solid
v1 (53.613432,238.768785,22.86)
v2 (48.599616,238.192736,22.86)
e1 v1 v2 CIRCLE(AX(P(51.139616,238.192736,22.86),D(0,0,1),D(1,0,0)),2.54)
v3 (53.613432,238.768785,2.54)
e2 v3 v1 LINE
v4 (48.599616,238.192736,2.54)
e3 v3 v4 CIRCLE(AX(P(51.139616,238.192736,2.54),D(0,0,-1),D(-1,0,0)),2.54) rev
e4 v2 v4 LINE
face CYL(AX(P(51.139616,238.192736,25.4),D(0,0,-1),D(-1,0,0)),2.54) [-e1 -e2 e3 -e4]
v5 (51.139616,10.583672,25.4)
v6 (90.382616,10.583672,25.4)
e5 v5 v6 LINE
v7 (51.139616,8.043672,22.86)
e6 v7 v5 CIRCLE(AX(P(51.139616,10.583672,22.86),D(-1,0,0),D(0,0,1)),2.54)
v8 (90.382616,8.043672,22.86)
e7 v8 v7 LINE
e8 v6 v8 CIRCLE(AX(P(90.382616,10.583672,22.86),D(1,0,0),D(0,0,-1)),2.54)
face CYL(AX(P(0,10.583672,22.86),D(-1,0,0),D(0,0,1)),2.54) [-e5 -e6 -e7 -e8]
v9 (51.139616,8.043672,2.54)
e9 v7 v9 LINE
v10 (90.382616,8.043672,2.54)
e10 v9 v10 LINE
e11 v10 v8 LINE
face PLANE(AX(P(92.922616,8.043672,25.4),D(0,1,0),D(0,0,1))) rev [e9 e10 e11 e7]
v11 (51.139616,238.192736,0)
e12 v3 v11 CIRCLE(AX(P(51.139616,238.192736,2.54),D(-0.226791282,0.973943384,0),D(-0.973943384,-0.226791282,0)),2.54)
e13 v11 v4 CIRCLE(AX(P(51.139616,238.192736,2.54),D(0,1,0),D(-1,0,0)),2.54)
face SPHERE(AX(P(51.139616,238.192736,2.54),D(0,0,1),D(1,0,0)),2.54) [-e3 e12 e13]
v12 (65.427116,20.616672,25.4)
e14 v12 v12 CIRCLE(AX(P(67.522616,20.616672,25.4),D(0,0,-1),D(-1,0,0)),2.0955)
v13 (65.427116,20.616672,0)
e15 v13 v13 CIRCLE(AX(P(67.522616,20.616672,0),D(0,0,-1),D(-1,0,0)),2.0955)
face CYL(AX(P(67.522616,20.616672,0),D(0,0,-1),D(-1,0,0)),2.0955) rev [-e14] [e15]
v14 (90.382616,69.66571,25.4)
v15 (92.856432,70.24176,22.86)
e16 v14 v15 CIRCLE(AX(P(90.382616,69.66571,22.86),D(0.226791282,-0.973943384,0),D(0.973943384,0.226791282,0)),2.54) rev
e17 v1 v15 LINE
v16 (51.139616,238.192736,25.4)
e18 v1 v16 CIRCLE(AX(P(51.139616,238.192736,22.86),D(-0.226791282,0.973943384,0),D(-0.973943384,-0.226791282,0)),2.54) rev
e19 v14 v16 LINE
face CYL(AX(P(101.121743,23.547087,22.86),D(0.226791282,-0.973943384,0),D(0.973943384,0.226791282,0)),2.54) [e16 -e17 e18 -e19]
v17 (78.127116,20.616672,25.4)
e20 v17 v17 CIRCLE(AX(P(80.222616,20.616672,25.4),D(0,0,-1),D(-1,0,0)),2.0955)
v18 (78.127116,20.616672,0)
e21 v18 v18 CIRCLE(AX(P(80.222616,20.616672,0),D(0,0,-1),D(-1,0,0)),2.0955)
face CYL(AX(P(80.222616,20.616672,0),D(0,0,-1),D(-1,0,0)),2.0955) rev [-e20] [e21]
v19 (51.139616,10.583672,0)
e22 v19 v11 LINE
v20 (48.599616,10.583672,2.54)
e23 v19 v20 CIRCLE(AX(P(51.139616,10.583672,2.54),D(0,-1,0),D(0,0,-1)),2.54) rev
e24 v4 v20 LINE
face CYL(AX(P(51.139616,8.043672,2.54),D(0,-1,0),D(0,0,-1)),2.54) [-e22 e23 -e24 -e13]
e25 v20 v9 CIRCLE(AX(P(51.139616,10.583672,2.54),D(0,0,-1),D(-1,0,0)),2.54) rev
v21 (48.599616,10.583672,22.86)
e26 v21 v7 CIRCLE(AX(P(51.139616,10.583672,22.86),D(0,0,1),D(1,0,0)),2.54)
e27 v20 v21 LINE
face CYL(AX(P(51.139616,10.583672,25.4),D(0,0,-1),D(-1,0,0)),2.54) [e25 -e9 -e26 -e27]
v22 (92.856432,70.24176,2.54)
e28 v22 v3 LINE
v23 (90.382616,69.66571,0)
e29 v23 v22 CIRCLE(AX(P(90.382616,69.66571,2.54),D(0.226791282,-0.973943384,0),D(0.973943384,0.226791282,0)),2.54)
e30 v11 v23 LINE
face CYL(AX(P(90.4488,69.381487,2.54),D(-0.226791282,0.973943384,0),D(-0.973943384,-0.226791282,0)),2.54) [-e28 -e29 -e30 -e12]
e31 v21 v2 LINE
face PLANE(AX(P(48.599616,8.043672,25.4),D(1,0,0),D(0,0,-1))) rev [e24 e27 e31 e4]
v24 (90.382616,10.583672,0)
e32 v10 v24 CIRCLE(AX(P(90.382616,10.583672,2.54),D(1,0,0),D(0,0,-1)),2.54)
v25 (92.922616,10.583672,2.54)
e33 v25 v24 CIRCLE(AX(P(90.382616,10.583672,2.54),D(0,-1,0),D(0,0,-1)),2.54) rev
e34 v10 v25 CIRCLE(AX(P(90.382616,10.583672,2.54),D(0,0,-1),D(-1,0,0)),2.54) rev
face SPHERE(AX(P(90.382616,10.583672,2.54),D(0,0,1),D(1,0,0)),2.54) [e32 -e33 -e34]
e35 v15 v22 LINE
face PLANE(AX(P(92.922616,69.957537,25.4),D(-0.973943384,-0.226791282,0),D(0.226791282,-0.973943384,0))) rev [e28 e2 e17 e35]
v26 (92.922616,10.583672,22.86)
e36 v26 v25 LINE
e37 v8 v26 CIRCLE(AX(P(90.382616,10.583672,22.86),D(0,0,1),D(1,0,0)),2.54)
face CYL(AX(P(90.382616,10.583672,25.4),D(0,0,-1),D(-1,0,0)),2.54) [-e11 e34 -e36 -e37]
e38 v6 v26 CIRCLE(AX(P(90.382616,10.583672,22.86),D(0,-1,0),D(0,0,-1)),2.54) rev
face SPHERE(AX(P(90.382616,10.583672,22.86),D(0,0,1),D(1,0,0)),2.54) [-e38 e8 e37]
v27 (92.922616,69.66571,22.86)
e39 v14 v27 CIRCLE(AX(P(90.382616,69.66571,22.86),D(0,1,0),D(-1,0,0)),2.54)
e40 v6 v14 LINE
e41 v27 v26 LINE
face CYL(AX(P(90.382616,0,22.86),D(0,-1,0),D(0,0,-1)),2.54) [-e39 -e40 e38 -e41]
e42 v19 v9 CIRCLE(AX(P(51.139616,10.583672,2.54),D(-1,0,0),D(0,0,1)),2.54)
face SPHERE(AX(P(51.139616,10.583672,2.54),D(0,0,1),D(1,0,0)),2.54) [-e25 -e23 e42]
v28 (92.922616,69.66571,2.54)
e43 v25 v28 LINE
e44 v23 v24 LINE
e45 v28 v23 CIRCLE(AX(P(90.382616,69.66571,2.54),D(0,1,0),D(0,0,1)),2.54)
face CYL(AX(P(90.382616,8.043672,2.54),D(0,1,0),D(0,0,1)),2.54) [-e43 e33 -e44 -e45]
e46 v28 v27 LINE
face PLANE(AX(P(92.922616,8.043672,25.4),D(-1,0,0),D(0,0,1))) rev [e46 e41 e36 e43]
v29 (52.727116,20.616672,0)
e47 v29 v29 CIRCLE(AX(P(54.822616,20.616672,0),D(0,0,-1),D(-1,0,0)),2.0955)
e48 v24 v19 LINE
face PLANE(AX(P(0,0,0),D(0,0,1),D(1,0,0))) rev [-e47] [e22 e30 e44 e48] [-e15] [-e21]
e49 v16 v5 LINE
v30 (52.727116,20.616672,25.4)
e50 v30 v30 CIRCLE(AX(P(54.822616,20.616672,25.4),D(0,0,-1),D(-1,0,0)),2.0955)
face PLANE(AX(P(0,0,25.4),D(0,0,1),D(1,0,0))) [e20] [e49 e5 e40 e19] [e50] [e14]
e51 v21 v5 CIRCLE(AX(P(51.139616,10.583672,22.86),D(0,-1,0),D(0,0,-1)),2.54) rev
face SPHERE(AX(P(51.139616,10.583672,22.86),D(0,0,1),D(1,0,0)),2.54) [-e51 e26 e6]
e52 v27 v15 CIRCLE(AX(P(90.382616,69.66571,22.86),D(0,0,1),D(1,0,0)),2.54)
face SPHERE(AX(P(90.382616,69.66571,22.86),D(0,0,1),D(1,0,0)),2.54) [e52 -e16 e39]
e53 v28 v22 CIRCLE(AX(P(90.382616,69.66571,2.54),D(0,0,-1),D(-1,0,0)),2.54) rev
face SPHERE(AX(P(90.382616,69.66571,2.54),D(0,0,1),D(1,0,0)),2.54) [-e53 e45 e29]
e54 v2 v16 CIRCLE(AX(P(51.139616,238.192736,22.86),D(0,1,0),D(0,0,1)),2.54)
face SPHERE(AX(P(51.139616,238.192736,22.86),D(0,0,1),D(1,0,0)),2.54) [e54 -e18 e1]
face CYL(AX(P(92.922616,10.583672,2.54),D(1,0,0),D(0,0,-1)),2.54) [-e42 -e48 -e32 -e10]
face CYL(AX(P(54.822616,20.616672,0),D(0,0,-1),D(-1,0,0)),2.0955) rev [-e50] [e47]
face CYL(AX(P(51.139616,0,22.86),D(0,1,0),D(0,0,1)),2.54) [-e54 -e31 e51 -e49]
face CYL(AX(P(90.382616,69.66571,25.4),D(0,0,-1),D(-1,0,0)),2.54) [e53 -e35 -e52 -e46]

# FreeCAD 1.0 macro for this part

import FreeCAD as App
import Part
import Sketcher
from FreeCAD import Vector
Q = App.Units.Quantity


def edges_at(feature, points):
    """Names of the edges that pass closest to the given points."""
    edges = feature.Shape.Edges
    near = lambda p: min(range(len(edges)), key=lambda i: edges[i].distToShape(Part.Vertex(*p))[0])
    return sorted({f"Edge{near(p) + 1}" for p in points})


def add_polygon(sketch, points):
    """Adds a closed chain of lines whose ends are joined by coincident constraints."""
    first, n = sketch.GeometryCount, len(points)
    for a, b in zip(points, points[1:] + points[:1]):
        sketch.addGeometry(Part.LineSegment(App.Vector(*a, 0), App.Vector(*b, 0)), False)
    for i in range(n):
        sketch.addConstraint(Sketcher.Constraint("Coincident", first + i, 2, first + (i + 1) % n, 1))

doc = App.newDocument("Part")
body = doc.addObject("PartDesign::Body", "Body")

# Sketch on XY plane
sketch1 = doc.addObject("Sketcher::SketchObject", "Sketch")
body.addObject(sketch1)
sketch1.AttachmentSupport = (doc.XY_Plane, [""])
sketch1.MapMode = "FlatFace"
add_polygon(sketch1, [(49, 8), (93, 8), (93, 70), (49, 260)])  # lines 0-3
sketch1.addConstraint([
    Sketcher.Constraint("Horizontal", 0),
    Sketcher.Constraint("Vertical", 1),
    Sketcher.Constraint("Vertical", 3),
    Sketcher.Constraint("DistanceX", 0, 1, 0, 2, Q("1.745 in")),
    Sketcher.Constraint("Distance", 2, Q("195.435202 mm")),
    Sketcher.Constraint("DistanceY", 1, 1, 1, 2, Q("61.913865 mm")),
    Sketcher.Constraint("DistanceY", -1, 1, 0, 2, Q("8.043672 mm")),
    Sketcher.Constraint("DistanceX", -1, 1, 0, 2, Q("92.922616 mm")),
])
pad1 = doc.addObject("PartDesign::Pad", "Pad")
body.addObject(pad1)
pad1.Profile = sketch1
pad1.Length = Q("1 in")

# Sketch on XY plane
sketch2 = doc.addObject("Sketcher::SketchObject", "Sketch001")
body.addObject(sketch2)
sketch2.AttachmentSupport = (doc.XY_Plane, [""])
sketch2.MapMode = "FlatFace"
sketch2.addGeometry([
    Part.Circle(Vector(80.2, 20.6, 0), Vector(0, 0, 1), 2.1),
    Part.Circle(Vector(67.5, 20.6, 0), Vector(0, 0, 1), 2.1),
    Part.Circle(Vector(54.8, 20.6, 0), Vector(0, 0, 1), 2.1),
], False)
sketch2.addConstraint([
    Sketcher.Constraint("Equal", 0, 1),
    Sketcher.Constraint("Equal", 1, 2),
    Sketcher.Constraint("Horizontal", 0, 3, 1, 3),
    Sketcher.Constraint("Horizontal", 1, 3, 2, 3),
    Sketcher.Constraint("Diameter", 0, Q("0.165 in")),
    Sketcher.Constraint("DistanceX", 2, 3, 0, 3, Q("1 in")),
    Sketcher.Constraint("DistanceX", 1, 3, 0, 3, Q("0.5 in")),
    Sketcher.Constraint("DistanceY", -1, 1, 0, 3, Q("20.616672 mm")),
    Sketcher.Constraint("DistanceX", -1, 1, 0, 3, Q("80.222616 mm")),
])
doc.recompute()
hole = doc.addObject("PartDesign::Hole", "Hole")
body.addObject(hole)
hole.Profile = sketch2
hole.ThreadType = "None"
hole.Diameter = Q("0.165 in")
hole.DepthType = "ThroughAll"
hole.Reversed = True
doc.recompute()

fillet = doc.addObject("PartDesign::Fillet", "Fillet")
body.addObject(fillet)
fillet.Base = (hole, edges_at(hole, [
    (92.923, 39.001, 25.4),
    (70.761, 165.129, 25.4),
    (48.6, 134.172, 25.4),
    (70.761, 165.129, 0),
    (92.923, 39.001, 0),
    (70.761, 8.044, 0),
    (48.6, 134.172, 0),
    (70.761, 8.044, 25.4),
    (48.6, 260.3, 12.7),
    (92.923, 69.958, 12.7),
    (92.923, 8.044, 12.7),
    (48.6, 8.044, 12.7),
]))
fillet.Radius = Q("0.1 in")

doc.recompute()
